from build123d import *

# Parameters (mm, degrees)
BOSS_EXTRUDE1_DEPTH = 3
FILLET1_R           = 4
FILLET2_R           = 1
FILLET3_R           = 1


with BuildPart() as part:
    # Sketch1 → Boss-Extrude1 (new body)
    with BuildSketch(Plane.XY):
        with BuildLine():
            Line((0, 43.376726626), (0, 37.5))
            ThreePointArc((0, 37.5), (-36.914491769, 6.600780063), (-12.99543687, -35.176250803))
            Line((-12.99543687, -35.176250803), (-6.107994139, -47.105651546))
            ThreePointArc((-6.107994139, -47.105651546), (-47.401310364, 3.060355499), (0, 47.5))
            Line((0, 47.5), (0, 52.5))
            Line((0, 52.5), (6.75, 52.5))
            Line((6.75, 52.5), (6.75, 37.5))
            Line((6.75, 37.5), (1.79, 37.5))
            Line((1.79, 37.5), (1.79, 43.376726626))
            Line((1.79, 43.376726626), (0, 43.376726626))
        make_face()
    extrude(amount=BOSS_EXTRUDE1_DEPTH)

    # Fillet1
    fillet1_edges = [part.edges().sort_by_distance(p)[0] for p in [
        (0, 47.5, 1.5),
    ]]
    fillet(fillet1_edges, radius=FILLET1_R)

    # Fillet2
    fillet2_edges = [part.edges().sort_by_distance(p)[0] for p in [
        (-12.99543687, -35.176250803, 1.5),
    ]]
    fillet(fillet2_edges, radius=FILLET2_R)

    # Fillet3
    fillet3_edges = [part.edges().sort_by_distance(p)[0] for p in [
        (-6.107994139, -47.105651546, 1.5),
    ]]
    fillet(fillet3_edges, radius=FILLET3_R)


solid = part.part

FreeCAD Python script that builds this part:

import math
import FreeCAD as App
import Part
import Sketcher
Q = App.Units.Quantity


def edges_at(feature, points):
    """Names of the edges that pass closest to the given points."""
    edges = feature.Shape.Edges
    near = lambda p: min(range(len(edges)), key=lambda i: edges[i].distToShape(Part.Vertex(*p))[0])
    return sorted({f"Edge{near(p) + 1}" for p in points})

doc = App.newDocument("Part")
body = doc.addObject("PartDesign::Body", "Body")

sketch1 = body.newObject("Sketcher::SketchObject", "Sketch")
sketch1.AttachmentSupport = (doc.getObject("XY_Plane"), [""])
sketch1.MapMode = "FlatFace"
sketch1.addGeometry([
    Part.LineSegment(App.Vector(0, 37.5, 0), App.Vector(0, 43.4, 0)),
    Part.LineSegment(App.Vector(0, 43.4, 0), App.Vector(1.8, 43.4, 0)),
    Part.LineSegment(App.Vector(1.8, 43.4, 0), App.Vector(1.8, 37.5, 0)),
    Part.LineSegment(App.Vector(1.8, 37.5, 0), App.Vector(6.8, 37.5, 0)),
    Part.LineSegment(App.Vector(6.8, 37.5, 0), App.Vector(6.8, 52.5, 0)),
    Part.LineSegment(App.Vector(6.8, 52.5, 0), App.Vector(0, 52.5, 0)),
    Part.LineSegment(App.Vector(0, 52.5, 0), App.Vector(0, 47.5, 0)),
    Part.ArcOfCircle(Part.Circle(App.Vector(0, 0, 0), App.Vector(0, 0, 1), 47.5), math.radians(90), math.radians(263)),
    Part.LineSegment(App.Vector(-6.1, -47.1, 0), App.Vector(-13, -35.2, 0)),
    Part.ArcOfCircle(Part.Circle(App.Vector(0, 0, 0), App.Vector(0, 0, 1), 37.5), math.radians(90), math.radians(250)),
], False)
sketch1.addConstraint([
    Sketcher.Constraint("Coincident", 0, 2, 1, 1),
    Sketcher.Constraint("Coincident", 1, 2, 2, 1),
    Sketcher.Constraint("Coincident", 2, 2, 3, 1),
    Sketcher.Constraint("Coincident", 3, 2, 4, 1),
    Sketcher.Constraint("Coincident", 4, 2, 5, 1),
    Sketcher.Constraint("Coincident", 5, 2, 6, 1),
    Sketcher.Constraint("Coincident", 6, 2, 7, 1),
    Sketcher.Constraint("Coincident", 7, 2, 8, 1),
    Sketcher.Constraint("Coincident", 8, 2, 9, 2),
    Sketcher.Constraint("Coincident", 9, 1, 0, 1),
    Sketcher.Constraint("Vertical", 0),
    Sketcher.Constraint("Horizontal", 1),
    Sketcher.Constraint("Vertical", 2),
    Sketcher.Constraint("Horizontal", 3),
    Sketcher.Constraint("Vertical", 4),
    Sketcher.Constraint("Horizontal", 5),
    Sketcher.Constraint("Vertical", 6),
    Sketcher.Constraint("Coincident", 7, 3, -1, 1),
    Sketcher.Constraint("Coincident", 9, 3, -1, 1),
    Sketcher.Constraint("PointOnObject", 0, 2, -2),
    Sketcher.Constraint("PointOnObject", 5, 2, -2),
    Sketcher.Constraint("Horizontal", 3, 2, 9, 1),
    Sketcher.Constraint("Radius", 7, 47.5),
    Sketcher.Constraint("Radius", 9, 37.5),
    Sketcher.Constraint("DistanceY", 4, 1, 4, 2, 15.0),
    Sketcher.Constraint("Angle", 8, Q("120 deg")),
    Sketcher.Constraint("DistanceX", 1, 1, 1, 2, 1.79),
    Sketcher.Constraint("DistanceX", 3, 1, 3, 2, 4.96),
    Sketcher.Constraint("DistanceY", 7, 2, 8, 2, 11.929401),
    Sketcher.Constraint("DistanceY", 0, 1, 0, 2, 5.876727),
])
pad1 = body.newObject("PartDesign::Pad", "Pad")
pad1.Profile = sketch1
pad1.Length = 3
doc.recompute()

fillet = body.newObject("PartDesign::Fillet", "Fillet")
fillet.Base = (pad1, edges_at(pad1, [(0, 47.5, 1.5)]))
fillet.Radius = 4
doc.recompute()

fillet2 = body.newObject("PartDesign::Fillet", "Fillet001")
fillet2.Base = (fillet, edges_at(fillet, [(-12.995, -35.176, 1.5)]))
fillet2.Radius = 1
doc.recompute()

fillet3 = body.newObject("PartDesign::Fillet", "Fillet002")
fillet3.Base = (fillet2, edges_at(fillet2, [(-6.108, -47.106, 1.5)]))
fillet3.Radius = 1

doc.recompute()
